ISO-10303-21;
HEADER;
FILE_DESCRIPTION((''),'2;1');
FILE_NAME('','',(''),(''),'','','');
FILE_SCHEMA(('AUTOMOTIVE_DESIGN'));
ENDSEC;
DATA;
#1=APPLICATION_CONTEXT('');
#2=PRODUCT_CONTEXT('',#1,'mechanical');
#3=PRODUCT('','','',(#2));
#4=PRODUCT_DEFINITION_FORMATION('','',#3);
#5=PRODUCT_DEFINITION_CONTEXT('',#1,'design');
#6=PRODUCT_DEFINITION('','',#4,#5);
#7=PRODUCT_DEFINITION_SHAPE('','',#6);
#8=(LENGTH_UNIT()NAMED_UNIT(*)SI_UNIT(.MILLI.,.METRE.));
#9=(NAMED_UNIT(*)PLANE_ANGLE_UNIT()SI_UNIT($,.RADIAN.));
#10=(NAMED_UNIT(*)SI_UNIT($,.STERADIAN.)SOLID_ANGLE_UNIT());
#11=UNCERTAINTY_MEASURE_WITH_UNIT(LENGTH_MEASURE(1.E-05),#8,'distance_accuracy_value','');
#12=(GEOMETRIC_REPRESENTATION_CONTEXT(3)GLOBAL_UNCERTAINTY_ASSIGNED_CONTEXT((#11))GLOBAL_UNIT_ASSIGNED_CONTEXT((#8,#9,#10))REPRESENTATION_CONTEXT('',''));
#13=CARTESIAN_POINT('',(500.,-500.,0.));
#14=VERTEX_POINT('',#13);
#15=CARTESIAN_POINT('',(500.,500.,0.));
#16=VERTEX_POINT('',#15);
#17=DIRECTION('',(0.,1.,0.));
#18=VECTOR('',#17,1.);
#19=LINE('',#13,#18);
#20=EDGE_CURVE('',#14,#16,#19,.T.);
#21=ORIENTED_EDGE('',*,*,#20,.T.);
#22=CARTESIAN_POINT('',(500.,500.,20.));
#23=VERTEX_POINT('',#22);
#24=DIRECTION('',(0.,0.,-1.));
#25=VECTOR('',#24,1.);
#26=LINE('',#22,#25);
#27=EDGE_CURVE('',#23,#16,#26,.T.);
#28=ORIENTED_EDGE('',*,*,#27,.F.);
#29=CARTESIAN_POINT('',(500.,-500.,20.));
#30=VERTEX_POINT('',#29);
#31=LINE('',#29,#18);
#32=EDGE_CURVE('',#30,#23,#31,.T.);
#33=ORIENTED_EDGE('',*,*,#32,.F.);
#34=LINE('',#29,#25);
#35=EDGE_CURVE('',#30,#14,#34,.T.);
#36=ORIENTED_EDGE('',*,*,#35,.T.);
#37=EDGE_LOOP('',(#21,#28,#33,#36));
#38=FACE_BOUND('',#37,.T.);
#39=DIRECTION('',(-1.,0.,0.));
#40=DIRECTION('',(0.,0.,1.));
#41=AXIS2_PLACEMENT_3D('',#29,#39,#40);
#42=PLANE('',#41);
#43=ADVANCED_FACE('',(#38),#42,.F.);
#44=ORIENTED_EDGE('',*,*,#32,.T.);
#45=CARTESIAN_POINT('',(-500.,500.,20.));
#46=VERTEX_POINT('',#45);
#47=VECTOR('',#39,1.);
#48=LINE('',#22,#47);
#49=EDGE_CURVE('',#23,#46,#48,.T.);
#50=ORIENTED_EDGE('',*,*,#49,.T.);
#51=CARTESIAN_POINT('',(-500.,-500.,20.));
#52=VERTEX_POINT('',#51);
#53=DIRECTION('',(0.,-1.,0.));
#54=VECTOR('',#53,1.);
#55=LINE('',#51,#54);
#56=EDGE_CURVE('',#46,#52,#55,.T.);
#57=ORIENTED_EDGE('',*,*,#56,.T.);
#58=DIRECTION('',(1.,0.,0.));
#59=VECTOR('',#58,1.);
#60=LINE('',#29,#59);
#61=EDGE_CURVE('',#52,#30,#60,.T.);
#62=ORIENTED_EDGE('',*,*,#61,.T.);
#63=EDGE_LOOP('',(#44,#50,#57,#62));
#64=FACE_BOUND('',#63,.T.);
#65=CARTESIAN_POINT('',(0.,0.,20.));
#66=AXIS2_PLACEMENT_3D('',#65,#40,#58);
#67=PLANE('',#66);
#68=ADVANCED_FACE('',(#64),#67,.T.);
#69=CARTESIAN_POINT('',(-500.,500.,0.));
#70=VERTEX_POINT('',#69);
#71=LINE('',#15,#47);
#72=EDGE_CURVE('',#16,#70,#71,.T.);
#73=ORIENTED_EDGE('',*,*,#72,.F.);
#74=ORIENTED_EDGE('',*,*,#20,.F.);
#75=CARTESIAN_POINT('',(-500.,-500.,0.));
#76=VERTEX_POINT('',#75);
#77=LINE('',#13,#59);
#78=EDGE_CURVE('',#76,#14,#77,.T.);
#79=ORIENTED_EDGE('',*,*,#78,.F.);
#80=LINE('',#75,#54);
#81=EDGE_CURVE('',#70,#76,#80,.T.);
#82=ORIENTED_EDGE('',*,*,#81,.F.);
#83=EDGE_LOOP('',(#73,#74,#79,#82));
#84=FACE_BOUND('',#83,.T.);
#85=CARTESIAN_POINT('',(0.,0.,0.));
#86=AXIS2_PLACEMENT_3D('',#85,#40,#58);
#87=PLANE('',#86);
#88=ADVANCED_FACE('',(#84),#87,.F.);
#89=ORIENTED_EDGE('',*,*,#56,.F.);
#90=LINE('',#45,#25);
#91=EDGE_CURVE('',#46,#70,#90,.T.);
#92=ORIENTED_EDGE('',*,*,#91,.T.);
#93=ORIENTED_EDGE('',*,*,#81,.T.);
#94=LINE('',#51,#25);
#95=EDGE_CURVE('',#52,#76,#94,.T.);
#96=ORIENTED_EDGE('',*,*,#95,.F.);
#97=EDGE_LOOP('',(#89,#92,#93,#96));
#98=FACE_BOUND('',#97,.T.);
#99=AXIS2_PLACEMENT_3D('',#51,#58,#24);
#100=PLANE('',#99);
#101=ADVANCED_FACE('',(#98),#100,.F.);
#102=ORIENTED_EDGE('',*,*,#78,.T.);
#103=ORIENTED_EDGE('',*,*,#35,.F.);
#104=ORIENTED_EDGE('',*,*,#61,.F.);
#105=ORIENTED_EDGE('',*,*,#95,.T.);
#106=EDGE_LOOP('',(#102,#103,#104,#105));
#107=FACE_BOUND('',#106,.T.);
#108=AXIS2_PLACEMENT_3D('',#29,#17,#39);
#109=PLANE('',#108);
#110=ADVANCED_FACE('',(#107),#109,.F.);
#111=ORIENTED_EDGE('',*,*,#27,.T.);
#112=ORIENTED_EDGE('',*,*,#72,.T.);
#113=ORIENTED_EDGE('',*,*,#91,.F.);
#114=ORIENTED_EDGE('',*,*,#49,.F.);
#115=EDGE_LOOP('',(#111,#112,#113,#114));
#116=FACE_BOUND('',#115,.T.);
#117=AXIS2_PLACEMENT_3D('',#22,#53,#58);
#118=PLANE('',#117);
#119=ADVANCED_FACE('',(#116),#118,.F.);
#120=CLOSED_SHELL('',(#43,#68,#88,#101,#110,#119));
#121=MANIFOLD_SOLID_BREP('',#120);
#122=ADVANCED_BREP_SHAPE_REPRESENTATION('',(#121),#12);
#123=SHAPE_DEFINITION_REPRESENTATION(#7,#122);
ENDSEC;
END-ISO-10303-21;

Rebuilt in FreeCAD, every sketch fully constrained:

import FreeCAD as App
import Part
import Sketcher

doc = App.newDocument("Part")
body = doc.addObject("PartDesign::Body", "Body")

# Sketch on XY plane
sketch1 = body.newObject("Sketcher::SketchObject", "Sketch")
sketch1.AttachmentSupport = (doc.getObject("XY_Plane"), [""])
sketch1.MapMode = "FlatFace"
sketch1.addGeometry([
    Part.LineSegment(App.Vector(-500, 500, 0), App.Vector(-500, -500, 0)),
    Part.LineSegment(App.Vector(-500, -500, 0), App.Vector(500, -500, 0)),
    Part.LineSegment(App.Vector(500, -500, 0), App.Vector(500, 500, 0)),
    Part.LineSegment(App.Vector(500, 500, 0), App.Vector(-500, 500, 0)),
], False)
sketch1.addConstraint([
    Sketcher.Constraint("Coincident", 0, 2, 1, 1),
    Sketcher.Constraint("Coincident", 1, 2, 2, 1),
    Sketcher.Constraint("Coincident", 2, 2, 3, 1),
    Sketcher.Constraint("Coincident", 3, 2, 0, 1),
    Sketcher.Constraint("Vertical", 0),
    Sketcher.Constraint("Horizontal", 1),
    Sketcher.Constraint("Vertical", 2),
    Sketcher.Constraint("Horizontal", 3),
    Sketcher.Constraint("Symmetric", 0, 2, 2, 2, -1, 1),
    Sketcher.Constraint("Equal", 3, 0),
    Sketcher.Constraint("DistanceX", 1, 1, 1, 2, 1000.0),
])
pad1 = body.newObject("PartDesign::Pad", "Pad")
pad1.Profile = sketch1
pad1.Length = 20

doc.recompute()
